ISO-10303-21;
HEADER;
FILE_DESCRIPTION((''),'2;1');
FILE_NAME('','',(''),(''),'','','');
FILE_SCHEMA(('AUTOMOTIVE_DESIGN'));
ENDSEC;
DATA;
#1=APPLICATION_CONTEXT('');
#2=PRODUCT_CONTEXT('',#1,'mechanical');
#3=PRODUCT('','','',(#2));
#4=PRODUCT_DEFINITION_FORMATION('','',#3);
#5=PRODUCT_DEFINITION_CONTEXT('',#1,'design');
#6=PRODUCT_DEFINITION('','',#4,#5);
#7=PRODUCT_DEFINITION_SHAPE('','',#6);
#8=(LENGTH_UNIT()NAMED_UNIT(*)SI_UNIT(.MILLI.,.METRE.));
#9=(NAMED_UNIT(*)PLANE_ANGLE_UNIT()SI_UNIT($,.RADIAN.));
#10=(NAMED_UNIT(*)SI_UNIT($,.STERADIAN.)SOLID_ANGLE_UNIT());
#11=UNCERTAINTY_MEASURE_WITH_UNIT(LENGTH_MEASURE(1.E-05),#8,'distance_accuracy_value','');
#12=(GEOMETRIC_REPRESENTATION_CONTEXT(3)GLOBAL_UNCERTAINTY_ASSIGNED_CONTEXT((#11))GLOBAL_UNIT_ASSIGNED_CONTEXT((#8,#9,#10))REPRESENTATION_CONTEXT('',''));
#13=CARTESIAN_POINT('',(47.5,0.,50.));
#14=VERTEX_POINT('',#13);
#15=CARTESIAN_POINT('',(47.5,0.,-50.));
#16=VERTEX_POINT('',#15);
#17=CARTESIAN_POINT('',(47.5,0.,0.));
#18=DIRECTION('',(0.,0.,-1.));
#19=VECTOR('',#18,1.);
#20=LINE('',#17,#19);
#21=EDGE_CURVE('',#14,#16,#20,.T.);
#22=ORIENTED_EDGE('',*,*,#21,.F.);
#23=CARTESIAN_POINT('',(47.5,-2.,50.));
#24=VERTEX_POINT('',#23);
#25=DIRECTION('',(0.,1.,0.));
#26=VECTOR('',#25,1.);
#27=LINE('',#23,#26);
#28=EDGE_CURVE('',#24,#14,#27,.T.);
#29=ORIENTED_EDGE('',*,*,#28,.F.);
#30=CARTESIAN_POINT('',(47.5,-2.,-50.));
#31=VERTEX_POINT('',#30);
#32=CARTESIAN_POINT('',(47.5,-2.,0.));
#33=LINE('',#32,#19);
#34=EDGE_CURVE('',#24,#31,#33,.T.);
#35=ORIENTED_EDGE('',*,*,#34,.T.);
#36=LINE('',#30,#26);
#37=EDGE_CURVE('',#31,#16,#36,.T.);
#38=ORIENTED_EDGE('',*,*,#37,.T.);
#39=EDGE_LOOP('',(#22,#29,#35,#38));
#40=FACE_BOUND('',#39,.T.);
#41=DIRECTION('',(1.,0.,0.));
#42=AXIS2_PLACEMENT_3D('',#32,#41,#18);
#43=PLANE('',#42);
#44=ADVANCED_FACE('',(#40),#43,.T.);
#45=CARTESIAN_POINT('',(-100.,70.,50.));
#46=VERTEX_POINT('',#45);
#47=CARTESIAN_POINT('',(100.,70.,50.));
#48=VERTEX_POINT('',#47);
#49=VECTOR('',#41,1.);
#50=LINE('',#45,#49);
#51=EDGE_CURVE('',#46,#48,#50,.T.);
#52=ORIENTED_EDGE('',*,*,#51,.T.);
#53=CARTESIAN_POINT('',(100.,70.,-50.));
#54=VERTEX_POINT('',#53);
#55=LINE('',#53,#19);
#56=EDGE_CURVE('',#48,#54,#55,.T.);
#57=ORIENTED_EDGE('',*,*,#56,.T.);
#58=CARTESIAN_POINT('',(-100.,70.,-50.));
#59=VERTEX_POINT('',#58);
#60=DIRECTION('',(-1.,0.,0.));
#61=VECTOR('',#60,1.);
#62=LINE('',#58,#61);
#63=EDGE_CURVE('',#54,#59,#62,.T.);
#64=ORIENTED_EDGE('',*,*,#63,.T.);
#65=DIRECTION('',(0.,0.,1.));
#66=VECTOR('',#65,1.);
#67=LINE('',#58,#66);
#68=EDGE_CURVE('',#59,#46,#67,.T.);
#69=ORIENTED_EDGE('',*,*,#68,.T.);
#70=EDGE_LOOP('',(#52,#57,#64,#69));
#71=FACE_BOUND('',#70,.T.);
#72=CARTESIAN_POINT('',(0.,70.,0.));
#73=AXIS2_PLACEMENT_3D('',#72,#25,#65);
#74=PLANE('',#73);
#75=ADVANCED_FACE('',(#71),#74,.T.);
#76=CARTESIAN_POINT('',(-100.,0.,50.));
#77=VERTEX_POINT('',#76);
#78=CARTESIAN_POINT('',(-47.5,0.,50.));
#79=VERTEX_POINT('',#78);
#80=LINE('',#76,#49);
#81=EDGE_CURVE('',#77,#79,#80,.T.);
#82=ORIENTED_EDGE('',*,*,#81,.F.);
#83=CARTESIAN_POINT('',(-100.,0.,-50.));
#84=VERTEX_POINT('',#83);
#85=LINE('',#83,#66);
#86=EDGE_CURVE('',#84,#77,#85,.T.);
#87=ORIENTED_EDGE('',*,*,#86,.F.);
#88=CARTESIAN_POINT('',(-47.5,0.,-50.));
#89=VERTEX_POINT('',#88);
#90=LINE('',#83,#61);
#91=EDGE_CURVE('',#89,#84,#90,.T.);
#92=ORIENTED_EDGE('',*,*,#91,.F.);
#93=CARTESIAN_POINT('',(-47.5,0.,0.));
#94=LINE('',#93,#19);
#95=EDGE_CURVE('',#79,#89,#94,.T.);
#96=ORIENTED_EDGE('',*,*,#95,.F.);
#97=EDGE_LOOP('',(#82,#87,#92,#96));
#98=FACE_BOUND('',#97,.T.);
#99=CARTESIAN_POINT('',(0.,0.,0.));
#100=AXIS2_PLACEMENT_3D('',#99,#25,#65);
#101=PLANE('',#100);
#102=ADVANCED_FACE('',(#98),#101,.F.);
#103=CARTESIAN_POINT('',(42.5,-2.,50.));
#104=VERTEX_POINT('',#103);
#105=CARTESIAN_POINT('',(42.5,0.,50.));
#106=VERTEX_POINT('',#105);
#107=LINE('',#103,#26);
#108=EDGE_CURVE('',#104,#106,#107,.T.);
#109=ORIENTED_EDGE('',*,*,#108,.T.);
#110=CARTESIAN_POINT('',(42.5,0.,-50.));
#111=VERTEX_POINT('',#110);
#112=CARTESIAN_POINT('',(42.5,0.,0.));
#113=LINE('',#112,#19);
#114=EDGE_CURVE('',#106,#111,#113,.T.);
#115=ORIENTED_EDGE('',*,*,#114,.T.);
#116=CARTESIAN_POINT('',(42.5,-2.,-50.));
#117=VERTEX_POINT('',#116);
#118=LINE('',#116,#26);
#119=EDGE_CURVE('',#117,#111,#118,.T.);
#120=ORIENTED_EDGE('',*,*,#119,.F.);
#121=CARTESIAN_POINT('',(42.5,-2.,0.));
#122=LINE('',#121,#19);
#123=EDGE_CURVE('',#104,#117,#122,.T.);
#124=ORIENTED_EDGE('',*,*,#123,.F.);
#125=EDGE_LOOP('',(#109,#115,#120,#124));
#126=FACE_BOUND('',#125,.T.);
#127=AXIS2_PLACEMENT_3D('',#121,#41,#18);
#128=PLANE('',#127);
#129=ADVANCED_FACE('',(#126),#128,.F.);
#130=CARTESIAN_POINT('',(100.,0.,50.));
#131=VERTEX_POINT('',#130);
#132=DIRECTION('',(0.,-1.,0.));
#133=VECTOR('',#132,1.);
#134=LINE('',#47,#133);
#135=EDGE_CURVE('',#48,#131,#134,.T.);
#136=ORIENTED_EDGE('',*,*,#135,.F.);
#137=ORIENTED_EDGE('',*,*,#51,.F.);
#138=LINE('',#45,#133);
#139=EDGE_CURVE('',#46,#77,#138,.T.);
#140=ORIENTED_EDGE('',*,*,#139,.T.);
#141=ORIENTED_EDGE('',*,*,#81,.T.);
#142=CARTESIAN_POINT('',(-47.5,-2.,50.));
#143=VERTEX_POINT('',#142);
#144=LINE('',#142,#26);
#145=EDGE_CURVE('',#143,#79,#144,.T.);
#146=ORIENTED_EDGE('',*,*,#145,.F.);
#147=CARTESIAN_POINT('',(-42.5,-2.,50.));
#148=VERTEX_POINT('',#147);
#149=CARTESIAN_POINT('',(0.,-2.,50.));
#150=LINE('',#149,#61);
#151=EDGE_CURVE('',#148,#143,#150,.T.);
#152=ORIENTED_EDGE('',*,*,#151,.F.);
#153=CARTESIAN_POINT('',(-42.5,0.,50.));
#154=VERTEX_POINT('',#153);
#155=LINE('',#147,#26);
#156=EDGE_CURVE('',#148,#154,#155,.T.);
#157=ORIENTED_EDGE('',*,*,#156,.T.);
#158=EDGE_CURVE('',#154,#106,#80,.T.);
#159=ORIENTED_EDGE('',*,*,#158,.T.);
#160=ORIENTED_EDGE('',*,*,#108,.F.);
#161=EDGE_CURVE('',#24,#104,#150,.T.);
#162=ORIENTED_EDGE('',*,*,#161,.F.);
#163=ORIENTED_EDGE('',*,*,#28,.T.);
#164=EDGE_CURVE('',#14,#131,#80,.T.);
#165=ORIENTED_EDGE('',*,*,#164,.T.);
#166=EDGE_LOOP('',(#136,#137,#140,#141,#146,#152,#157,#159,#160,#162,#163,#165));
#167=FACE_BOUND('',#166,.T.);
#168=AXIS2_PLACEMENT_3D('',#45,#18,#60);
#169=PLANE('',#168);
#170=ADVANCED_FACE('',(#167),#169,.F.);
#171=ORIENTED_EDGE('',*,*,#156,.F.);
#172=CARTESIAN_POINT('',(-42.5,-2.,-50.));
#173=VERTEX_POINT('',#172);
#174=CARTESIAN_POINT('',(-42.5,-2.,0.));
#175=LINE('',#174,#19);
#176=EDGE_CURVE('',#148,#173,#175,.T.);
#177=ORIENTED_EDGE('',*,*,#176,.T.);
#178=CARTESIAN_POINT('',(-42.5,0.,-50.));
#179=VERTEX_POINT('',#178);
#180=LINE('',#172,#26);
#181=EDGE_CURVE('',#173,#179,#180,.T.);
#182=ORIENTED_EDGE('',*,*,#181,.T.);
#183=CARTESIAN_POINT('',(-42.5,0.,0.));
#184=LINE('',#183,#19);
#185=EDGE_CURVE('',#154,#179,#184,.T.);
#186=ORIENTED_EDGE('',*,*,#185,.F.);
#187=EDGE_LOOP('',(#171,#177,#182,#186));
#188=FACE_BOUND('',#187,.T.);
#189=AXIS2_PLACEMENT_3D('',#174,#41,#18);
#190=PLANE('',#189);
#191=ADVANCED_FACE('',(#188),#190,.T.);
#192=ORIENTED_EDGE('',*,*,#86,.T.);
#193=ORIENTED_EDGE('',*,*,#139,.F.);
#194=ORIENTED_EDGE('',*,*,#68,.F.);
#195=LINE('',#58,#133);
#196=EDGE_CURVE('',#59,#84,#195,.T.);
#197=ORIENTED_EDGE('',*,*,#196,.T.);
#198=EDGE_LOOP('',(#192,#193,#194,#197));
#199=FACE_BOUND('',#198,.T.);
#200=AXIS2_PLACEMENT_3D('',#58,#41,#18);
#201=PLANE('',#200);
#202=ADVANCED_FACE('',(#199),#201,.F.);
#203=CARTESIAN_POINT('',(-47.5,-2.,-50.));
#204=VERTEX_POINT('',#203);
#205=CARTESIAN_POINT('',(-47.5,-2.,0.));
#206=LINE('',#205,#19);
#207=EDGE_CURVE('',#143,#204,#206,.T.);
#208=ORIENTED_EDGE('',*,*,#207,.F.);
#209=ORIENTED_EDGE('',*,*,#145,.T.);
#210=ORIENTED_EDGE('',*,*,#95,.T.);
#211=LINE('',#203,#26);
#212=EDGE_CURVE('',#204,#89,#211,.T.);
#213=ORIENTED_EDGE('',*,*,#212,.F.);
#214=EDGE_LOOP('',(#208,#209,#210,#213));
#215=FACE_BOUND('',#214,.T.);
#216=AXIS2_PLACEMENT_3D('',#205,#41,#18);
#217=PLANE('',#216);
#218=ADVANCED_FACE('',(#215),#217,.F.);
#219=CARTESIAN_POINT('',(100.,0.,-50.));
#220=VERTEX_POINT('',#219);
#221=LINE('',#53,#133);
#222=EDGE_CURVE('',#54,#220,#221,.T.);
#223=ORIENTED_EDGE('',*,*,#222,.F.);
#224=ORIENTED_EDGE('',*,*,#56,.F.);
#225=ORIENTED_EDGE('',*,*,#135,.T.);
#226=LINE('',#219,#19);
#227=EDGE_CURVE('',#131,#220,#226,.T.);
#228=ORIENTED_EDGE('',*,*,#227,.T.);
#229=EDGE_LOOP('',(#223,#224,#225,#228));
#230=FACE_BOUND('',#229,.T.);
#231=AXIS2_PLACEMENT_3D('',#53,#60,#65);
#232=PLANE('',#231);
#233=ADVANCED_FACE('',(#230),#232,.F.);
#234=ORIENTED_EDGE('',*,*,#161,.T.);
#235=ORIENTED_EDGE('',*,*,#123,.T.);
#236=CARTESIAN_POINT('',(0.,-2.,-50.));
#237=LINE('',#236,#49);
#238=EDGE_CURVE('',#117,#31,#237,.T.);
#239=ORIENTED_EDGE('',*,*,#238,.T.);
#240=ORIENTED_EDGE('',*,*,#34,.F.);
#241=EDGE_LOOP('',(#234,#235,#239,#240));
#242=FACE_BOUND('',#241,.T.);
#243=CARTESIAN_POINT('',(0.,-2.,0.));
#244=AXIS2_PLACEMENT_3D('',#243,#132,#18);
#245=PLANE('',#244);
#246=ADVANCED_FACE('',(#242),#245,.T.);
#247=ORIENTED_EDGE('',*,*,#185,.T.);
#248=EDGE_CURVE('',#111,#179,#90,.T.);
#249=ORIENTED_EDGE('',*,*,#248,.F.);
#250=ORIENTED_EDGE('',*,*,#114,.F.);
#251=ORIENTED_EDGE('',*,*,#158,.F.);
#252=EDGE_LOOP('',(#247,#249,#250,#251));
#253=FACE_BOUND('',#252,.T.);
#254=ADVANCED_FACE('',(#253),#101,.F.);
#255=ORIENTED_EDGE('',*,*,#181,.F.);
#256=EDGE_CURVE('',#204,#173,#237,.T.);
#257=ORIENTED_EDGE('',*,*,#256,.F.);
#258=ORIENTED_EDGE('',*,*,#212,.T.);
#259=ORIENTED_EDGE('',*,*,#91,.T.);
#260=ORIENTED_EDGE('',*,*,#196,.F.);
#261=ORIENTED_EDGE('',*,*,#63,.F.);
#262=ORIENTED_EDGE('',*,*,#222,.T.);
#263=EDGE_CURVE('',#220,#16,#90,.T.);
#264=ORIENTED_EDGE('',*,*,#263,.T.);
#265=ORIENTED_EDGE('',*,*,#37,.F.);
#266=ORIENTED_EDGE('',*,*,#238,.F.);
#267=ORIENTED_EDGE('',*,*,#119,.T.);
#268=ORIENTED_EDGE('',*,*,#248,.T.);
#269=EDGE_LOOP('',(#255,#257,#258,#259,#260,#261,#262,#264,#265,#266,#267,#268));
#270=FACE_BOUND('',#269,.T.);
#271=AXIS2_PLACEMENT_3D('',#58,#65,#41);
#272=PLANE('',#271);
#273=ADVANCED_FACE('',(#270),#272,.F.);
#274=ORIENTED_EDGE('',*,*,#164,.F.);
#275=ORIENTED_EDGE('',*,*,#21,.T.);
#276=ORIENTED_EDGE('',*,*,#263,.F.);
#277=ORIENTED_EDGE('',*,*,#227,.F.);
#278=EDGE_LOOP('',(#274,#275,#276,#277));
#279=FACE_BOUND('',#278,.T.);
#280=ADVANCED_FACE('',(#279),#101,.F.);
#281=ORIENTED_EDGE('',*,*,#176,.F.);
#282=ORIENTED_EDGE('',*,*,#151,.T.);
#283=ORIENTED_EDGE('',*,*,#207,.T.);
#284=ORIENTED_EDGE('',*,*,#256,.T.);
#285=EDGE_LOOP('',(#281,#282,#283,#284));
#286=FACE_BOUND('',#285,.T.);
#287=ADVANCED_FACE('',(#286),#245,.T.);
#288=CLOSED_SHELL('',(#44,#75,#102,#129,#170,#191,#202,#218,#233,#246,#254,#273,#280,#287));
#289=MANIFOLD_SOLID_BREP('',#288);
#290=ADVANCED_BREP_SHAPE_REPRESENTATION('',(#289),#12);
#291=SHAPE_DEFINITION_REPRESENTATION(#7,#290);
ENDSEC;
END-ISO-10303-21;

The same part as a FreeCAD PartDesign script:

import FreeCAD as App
import Part
import Sketcher

V = App.Vector


def add_polygon(sketch, points):
    """Adds a closed chain of lines whose ends are joined by coincident constraints."""
    first, n = sketch.GeometryCount, len(points)
    for a, b in zip(points, points[1:] + points[:1]):
        sketch.addGeometry(Part.LineSegment(App.Vector(*a, 0), App.Vector(*b, 0)), False)
    for i in range(n):
        sketch.addConstraint(Sketcher.Constraint("Coincident", first + i, 2, first + (i + 1) % n, 1))

doc = App.newDocument("Part")
body = doc.addObject("PartDesign::Body", "Body")

# Sketch on XZ plane
sketch1 = doc.addObject("Sketcher::SketchObject", "Sketch")
body.addObject(sketch1)
sketch1.AttachmentSupport = (doc.XZ_Plane, [""])
sketch1.MapMode = "FlatFace"
add_polygon(sketch1, [(-100, -50), (-100, 50), (100, 50), (100, -50)])  # lines 0-3
sketch1.addConstraint(Sketcher.Constraint("Vertical", 0))
sketch1.addConstraint(Sketcher.Constraint("Horizontal", 1))
sketch1.addConstraint(Sketcher.Constraint("Vertical", 2))
sketch1.addConstraint(Sketcher.Constraint("Horizontal", 3))
sketch1.addConstraint(Sketcher.Constraint("Symmetric", 0, 2, 2, 2, -1, 1))
sketch1.addConstraint(Sketcher.Constraint("DistanceX", 1, 1, 1, 2, 200.0))
sketch1.addConstraint(Sketcher.Constraint("DistanceY", 0, 1, 0, 2, 100.0))
pad1 = doc.addObject("PartDesign::Pad", "Pad")
body.addObject(pad1)
pad1.Profile = sketch1
pad1.Length = 70
pad1.Reversed = True

# Sketch on XZ plane
sketch2 = doc.addObject("Sketcher::SketchObject", "Sketch001")
body.addObject(sketch2)
sketch2.AttachmentSupport = (doc.XZ_Plane, [""])
sketch2.MapMode = "FlatFace"
add_polygon(sketch2, [(-48, 50), (-48, -50), (-42, -50), (-42, 50)])  # lines 0-3
add_polygon(sketch2, [(42, 50), (42, -50), (48, -50), (48, 50)])  # lines 4-7
sketch2.addConstraint(Sketcher.Constraint("Vertical", 0))
sketch2.addConstraint(Sketcher.Constraint("Horizontal", 1))
sketch2.addConstraint(Sketcher.Constraint("Vertical", 2))
sketch2.addConstraint(Sketcher.Constraint("Horizontal", 3))
sketch2.addConstraint(Sketcher.Constraint("Vertical", 4))
sketch2.addConstraint(Sketcher.Constraint("Horizontal", 5))
sketch2.addConstraint(Sketcher.Constraint("Vertical", 6))
sketch2.addConstraint(Sketcher.Constraint("Horizontal", 7))
sketch2.addConstraint(Sketcher.Constraint("Symmetric", 2, 2, 4, 2, -1, 1))
sketch2.addConstraint(Sketcher.Constraint("Symmetric", 0, 2, 6, 2, -1, 1))
sketch2.addConstraint(Sketcher.Constraint("Horizontal", 1, 2, 4, 2))
sketch2.addConstraint(Sketcher.Constraint("DistanceX", 1, 1, 1, 2, 5.0))
sketch2.addConstraint(Sketcher.Constraint("DistanceY", 0, 2, 0, 1, 100.0))
sketch2.addConstraint(Sketcher.Constraint("DistanceX", 1, 2, 4, 2, 85.0))
pad2 = doc.addObject("PartDesign::Pad", "Pad001")
body.addObject(pad2)
pad2.Profile = sketch2
pad2.Length = 2

doc.recompute()
